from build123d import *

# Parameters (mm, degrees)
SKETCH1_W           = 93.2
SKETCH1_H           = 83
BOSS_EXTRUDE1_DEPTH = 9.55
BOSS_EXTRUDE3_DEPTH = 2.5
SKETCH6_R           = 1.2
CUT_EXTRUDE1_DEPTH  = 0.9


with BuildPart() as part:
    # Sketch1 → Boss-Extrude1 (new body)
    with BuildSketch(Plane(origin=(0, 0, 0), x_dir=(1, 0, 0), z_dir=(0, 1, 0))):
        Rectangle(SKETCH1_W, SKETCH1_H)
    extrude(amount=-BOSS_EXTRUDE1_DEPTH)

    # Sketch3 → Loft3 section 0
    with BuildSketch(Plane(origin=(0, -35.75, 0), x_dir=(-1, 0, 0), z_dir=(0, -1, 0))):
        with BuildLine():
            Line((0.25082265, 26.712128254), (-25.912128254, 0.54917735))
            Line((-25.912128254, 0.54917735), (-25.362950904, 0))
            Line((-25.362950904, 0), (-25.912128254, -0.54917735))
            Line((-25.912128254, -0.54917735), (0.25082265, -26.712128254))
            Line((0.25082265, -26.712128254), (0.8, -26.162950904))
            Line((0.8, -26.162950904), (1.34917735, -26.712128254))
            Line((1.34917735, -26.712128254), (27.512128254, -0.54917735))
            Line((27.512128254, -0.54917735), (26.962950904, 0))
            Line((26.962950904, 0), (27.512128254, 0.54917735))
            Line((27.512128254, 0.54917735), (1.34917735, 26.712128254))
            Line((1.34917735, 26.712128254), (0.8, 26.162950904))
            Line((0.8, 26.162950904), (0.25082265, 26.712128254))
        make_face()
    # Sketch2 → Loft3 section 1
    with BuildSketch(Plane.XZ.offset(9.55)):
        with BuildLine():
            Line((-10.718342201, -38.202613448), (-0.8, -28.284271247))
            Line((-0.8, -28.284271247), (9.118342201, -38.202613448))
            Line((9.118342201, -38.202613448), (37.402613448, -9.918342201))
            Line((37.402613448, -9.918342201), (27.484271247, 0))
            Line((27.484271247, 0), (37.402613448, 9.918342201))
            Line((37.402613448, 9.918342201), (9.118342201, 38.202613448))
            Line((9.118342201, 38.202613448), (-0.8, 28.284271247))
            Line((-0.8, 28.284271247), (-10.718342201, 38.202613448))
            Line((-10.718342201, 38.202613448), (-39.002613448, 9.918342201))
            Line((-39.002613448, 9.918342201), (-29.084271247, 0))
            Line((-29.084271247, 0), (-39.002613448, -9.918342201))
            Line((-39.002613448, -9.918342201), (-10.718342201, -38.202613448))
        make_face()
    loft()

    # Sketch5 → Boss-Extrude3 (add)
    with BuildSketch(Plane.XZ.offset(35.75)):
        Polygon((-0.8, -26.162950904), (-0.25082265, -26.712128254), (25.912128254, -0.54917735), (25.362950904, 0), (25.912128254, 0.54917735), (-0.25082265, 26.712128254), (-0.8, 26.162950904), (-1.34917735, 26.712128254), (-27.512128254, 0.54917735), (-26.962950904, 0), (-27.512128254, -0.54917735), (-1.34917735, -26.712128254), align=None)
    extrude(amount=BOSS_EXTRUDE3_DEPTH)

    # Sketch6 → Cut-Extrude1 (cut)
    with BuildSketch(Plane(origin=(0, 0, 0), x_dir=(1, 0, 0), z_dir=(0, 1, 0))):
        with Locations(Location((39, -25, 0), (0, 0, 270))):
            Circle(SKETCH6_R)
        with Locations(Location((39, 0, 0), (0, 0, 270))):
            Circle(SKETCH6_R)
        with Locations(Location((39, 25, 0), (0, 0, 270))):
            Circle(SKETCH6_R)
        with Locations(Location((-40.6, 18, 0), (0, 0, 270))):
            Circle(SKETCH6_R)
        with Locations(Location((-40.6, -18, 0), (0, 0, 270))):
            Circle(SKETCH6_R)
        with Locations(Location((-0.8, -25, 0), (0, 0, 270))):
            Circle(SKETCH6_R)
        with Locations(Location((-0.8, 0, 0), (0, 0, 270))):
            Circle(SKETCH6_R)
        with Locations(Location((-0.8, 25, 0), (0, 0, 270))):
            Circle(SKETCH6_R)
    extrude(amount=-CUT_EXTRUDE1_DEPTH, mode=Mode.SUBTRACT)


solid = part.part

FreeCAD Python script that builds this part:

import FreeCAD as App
import Part
import Sketcher
Q = App.Units.Quantity

doc = App.newDocument("Part")
body = doc.addObject("PartDesign::Body", "Body")

sketch1 = body.newObject("Sketcher::SketchObject", "Sketch")
sketch1.AttachmentSupport = (doc.getObject("XZ_Plane"), [""])
sketch1.MapMode = "FlatFace"
sketch1.addGeometry([
    Part.LineSegment(App.Vector(-46.6, -41.5, 0), App.Vector(-46.6, 41.5, 0)),
    Part.LineSegment(App.Vector(-46.6, 41.5, 0), App.Vector(46.6, 41.5, 0)),
    Part.LineSegment(App.Vector(46.6, 41.5, 0), App.Vector(46.6, -41.5, 0)),
    Part.LineSegment(App.Vector(46.6, -41.5, 0), App.Vector(-46.6, -41.5, 0)),
], False)
sketch1.addConstraint([
    Sketcher.Constraint("Coincident", 0, 2, 1, 1),
    Sketcher.Constraint("Coincident", 1, 2, 2, 1),
    Sketcher.Constraint("Coincident", 2, 2, 3, 1),
    Sketcher.Constraint("Coincident", 3, 2, 0, 1),
    Sketcher.Constraint("Vertical", 0),
    Sketcher.Constraint("Horizontal", 1),
    Sketcher.Constraint("Vertical", 2),
    Sketcher.Constraint("Horizontal", 3),
    Sketcher.Constraint("Symmetric", 0, 2, 2, 2, -1, 1),
    Sketcher.Constraint("DistanceY", 0, 1, 0, 2, Q("83 mm")),
    Sketcher.Constraint("DistanceX", 1, 1, 1, 2, Q("93.2 mm")),
])
pad1 = body.newObject("PartDesign::Pad", "Pad")
pad1.Profile = sketch1
pad1.Length = 9.55

sketch2 = body.newObject("Sketcher::SketchObject", "Sketch001")
sketch2.AttachmentSupport = (doc.getObject("XZ_Plane"), [""])
sketch2.MapMode = "FlatFace"
sketch2.AttachmentOffset = App.Placement(App.Vector(0, 0, 35.75), App.Rotation())
sketch2.addGeometry([
    Part.LineSegment(App.Vector(-0.250823, -26.712128, 0), App.Vector(25.912128, -0.549177, 0)),
    Part.LineSegment(App.Vector(25.912128, -0.549177, 0), App.Vector(25.362951, 0, 0)),
    Part.LineSegment(App.Vector(25.362951, 0, 0), App.Vector(25.912128, 0.549177, 0)),
    Part.LineSegment(App.Vector(25.912128, 0.549177, 0), App.Vector(-0.250823, 26.712128, 0)),
    Part.LineSegment(App.Vector(-0.250823, 26.712128, 0), App.Vector(-0.8, 26.162951, 0)),
    Part.LineSegment(App.Vector(-0.8, 26.162951, 0), App.Vector(-1.349177, 26.712128, 0)),
    Part.LineSegment(App.Vector(-1.349177, 26.712128, 0), App.Vector(-27.512128, 0.549177, 0)),
    Part.LineSegment(App.Vector(-27.512128, 0.549177, 0), App.Vector(-26.962951, 0, 0)),
    Part.LineSegment(App.Vector(-26.962951, 0, 0), App.Vector(-27.512128, -0.549177, 0)),
    Part.LineSegment(App.Vector(-27.512128, -0.549177, 0), App.Vector(-1.349177, -26.712128, 0)),
    Part.LineSegment(App.Vector(-1.349177, -26.712128, 0), App.Vector(-0.8, -26.162951, 0)),
    Part.LineSegment(App.Vector(-0.8, -26.162951, 0), App.Vector(-0.250823, -26.712128, 0)),
], False)
sketch2.addConstraint([
    Sketcher.Constraint("Coincident", 0, 2, 1, 1),
    Sketcher.Constraint("Coincident", 1, 2, 2, 1),
    Sketcher.Constraint("Coincident", 2, 2, 3, 1),
    Sketcher.Constraint("Coincident", 3, 2, 4, 1),
    Sketcher.Constraint("Coincident", 4, 2, 5, 1),
    Sketcher.Constraint("Coincident", 5, 2, 6, 1),
    Sketcher.Constraint("Coincident", 6, 2, 7, 1),
    Sketcher.Constraint("Coincident", 7, 2, 8, 1),
    Sketcher.Constraint("Coincident", 8, 2, 9, 1),
    Sketcher.Constraint("Coincident", 9, 2, 10, 1),
    Sketcher.Constraint("Coincident", 10, 2, 11, 1),
    Sketcher.Constraint("Coincident", 11, 2, 0, 1),
    Sketcher.Constraint("Symmetric", 0, 2, 2, 2, -1),
    Sketcher.Constraint("Symmetric", 6, 2, 8, 2, -1),
    Sketcher.Constraint("Symmetric", 5, 2, 9, 2, -1),
    Sketcher.Constraint("Symmetric", 4, 2, 10, 2, -1),
    Sketcher.Constraint("Symmetric", 3, 2, 11, 2, -1),
    Sketcher.Constraint("PointOnObject", 1, 2, -1),
    Sketcher.Constraint("PointOnObject", 7, 2, -1),
    Sketcher.Constraint("Perpendicular", 0, 1),
    Sketcher.Constraint("Perpendicular", 1, 2),
    Sketcher.Constraint("Perpendicular", 3, 4),
    Sketcher.Constraint("Perpendicular", 4, 5),
    Sketcher.Constraint("Perpendicular", 5, 6),
    Sketcher.Constraint("Perpendicular", 6, 7),
    Sketcher.Constraint("Horizontal", 3, 2, 5, 2),
    Sketcher.Constraint("Horizontal", 2, 2, 6, 2),
    Sketcher.Constraint("Equal", 2, 4),
    Sketcher.Constraint("Distance", 0, Q("37 mm")),
    Sketcher.Constraint("DistanceX", 4, 2, -1, 1, Q("0.8 mm")),
    Sketcher.Constraint("DistanceX", -1, 1, 0, 2, Q("25.912128 mm")),
])

sketch3 = body.newObject("Sketcher::SketchObject", "Sketch002")
sketch3.AttachmentSupport = (doc.getObject("XZ_Plane"), [""])
sketch3.MapMode = "FlatFace"
sketch3.AttachmentOffset = App.Placement(App.Vector(0, 0, 9.55), App.Rotation())
sketch3.addGeometry([
    Part.LineSegment(App.Vector(-10.718342, -38.202613, 0), App.Vector(-0.8, -28.284271, 0)),
    Part.LineSegment(App.Vector(-0.8, -28.284271, 0), App.Vector(9.118342, -38.202613, 0)),
    Part.LineSegment(App.Vector(9.118342, -38.202613, 0), App.Vector(37.402613, -9.918342, 0)),
    Part.LineSegment(App.Vector(37.402613, -9.918342, 0), App.Vector(27.484271, 0, 0)),
    Part.LineSegment(App.Vector(27.484271, 0, 0), App.Vector(37.402613, 9.918342, 0)),
    Part.LineSegment(App.Vector(37.402613, 9.918342, 0), App.Vector(9.118342, 38.202613, 0)),
    Part.LineSegment(App.Vector(9.118342, 38.202613, 0), App.Vector(-0.8, 28.284271, 0)),
    Part.LineSegment(App.Vector(-0.8, 28.284271, 0), App.Vector(-10.718342, 38.202613, 0)),
    Part.LineSegment(App.Vector(-10.718342, 38.202613, 0), App.Vector(-39.002613, 9.918342, 0)),
    Part.LineSegment(App.Vector(-39.002613, 9.918342, 0), App.Vector(-29.084271, 0, 0)),
    Part.LineSegment(App.Vector(-29.084271, 0, 0), App.Vector(-39.002613, -9.918342, 0)),
    Part.LineSegment(App.Vector(-39.002613, -9.918342, 0), App.Vector(-10.718342, -38.202613, 0)),
], False)
sketch3.addConstraint([
    Sketcher.Constraint("Coincident", 0, 2, 1, 1),
    Sketcher.Constraint("Coincident", 1, 2, 2, 1),
    Sketcher.Constraint("Coincident", 2, 2, 3, 1),
    Sketcher.Constraint("Coincident", 3, 2, 4, 1),
    Sketcher.Constraint("Coincident", 4, 2, 5, 1),
    Sketcher.Constraint("Coincident", 5, 2, 6, 1),
    Sketcher.Constraint("Coincident", 6, 2, 7, 1),
    Sketcher.Constraint("Coincident", 7, 2, 8, 1),
    Sketcher.Constraint("Coincident", 8, 2, 9, 1),
    Sketcher.Constraint("Coincident", 9, 2, 10, 1),
    Sketcher.Constraint("Coincident", 10, 2, 11, 1),
    Sketcher.Constraint("Coincident", 11, 2, 0, 1),
    Sketcher.Constraint("Symmetric", 2, 2, 4, 2, -1),
    Sketcher.Constraint("Symmetric", 1, 2, 5, 2, -1),
    Sketcher.Constraint("Symmetric", 0, 2, 6, 2, -1),
    Sketcher.Constraint("Symmetric", 8, 2, 10, 2, -1),
    Sketcher.Constraint("Symmetric", 7, 2, 11, 2, -1),
    Sketcher.Constraint("PointOnObject", 3, 2, -1),
    Sketcher.Constraint("PointOnObject", 9, 2, -1),
    Sketcher.Constraint("Perpendicular", 0, 1),
    Sketcher.Constraint("Perpendicular", 1, 2),
    Sketcher.Constraint("Perpendicular", 2, 3),
    Sketcher.Constraint("Perpendicular", 3, 4),
    Sketcher.Constraint("Perpendicular", 7, 8),
    Sketcher.Constraint("Perpendicular", 8, 9),
    Sketcher.Constraint("Horizontal", 5, 2, 7, 2),
    Sketcher.Constraint("Horizontal", 4, 2, 8, 2),
    Sketcher.Constraint("Equal", 1, 3),
    Sketcher.Constraint("Distance", 2, Q("40 mm")),
    Sketcher.Constraint("DistanceX", 0, 2, -1, 1, Q("0.8 mm")),
    Sketcher.Constraint("DistanceY", 0, 2, 2, 2, Q("18.365929 mm")),
])

additiveloft = body.newObject("PartDesign::AdditiveLoft", "AdditiveLoft")
additiveloft.Profile = sketch2
additiveloft.Sections = [sketch3]

sketch4 = body.newObject("Sketcher::SketchObject", "Sketch003")
sketch4.AttachmentSupport = (doc.getObject("XZ_Plane"), [""])
sketch4.MapMode = "FlatFace"
sketch4.AttachmentOffset = App.Placement(App.Vector(0, 0, 35.75), App.Rotation())
sketch4.addGeometry([
    Part.LineSegment(App.Vector(-0.8, -26.162951, 0), App.Vector(-0.250823, -26.712128, 0)),
    Part.LineSegment(App.Vector(-0.250823, -26.712128, 0), App.Vector(25.912128, -0.549177, 0)),
    Part.LineSegment(App.Vector(25.912128, -0.549177, 0), App.Vector(25.362951, 0, 0)),
    Part.LineSegment(App.Vector(25.362951, 0, 0), App.Vector(25.912128, 0.549177, 0)),
    Part.LineSegment(App.Vector(25.912128, 0.549177, 0), App.Vector(-0.250823, 26.712128, 0)),
    Part.LineSegment(App.Vector(-0.250823, 26.712128, 0), App.Vector(-0.8, 26.162951, 0)),
    Part.LineSegment(App.Vector(-0.8, 26.162951, 0), App.Vector(-1.349177, 26.712128, 0)),
    Part.LineSegment(App.Vector(-1.349177, 26.712128, 0), App.Vector(-27.512128, 0.549177, 0)),
    Part.LineSegment(App.Vector(-27.512128, 0.549177, 0), App.Vector(-26.962951, 0, 0)),
    Part.LineSegment(App.Vector(-26.962951, 0, 0), App.Vector(-27.512128, -0.549177, 0)),
    Part.LineSegment(App.Vector(-27.512128, -0.549177, 0), App.Vector(-1.349177, -26.712128, 0)),
    Part.LineSegment(App.Vector(-1.349177, -26.712128, 0), App.Vector(-0.8, -26.162951, 0)),
], False)
sketch4.addConstraint([
    Sketcher.Constraint("Coincident", 0, 2, 1, 1),
    Sketcher.Constraint("Coincident", 1, 2, 2, 1),
    Sketcher.Constraint("Coincident", 2, 2, 3, 1),
    Sketcher.Constraint("Coincident", 3, 2, 4, 1),
    Sketcher.Constraint("Coincident", 4, 2, 5, 1),
    Sketcher.Constraint("Coincident", 5, 2, 6, 1),
    Sketcher.Constraint("Coincident", 6, 2, 7, 1),
    Sketcher.Constraint("Coincident", 7, 2, 8, 1),
    Sketcher.Constraint("Coincident", 8, 2, 9, 1),
    Sketcher.Constraint("Coincident", 9, 2, 10, 1),
    Sketcher.Constraint("Coincident", 10, 2, 11, 1),
    Sketcher.Constraint("Coincident", 11, 2, 0, 1),
    Sketcher.Constraint("Symmetric", 1, 2, 3, 2, -1),
    Sketcher.Constraint("Symmetric", 0, 2, 4, 2, -1),
    Sketcher.Constraint("Symmetric", 7, 2, 9, 2, -1),
    Sketcher.Constraint("Symmetric", 6, 2, 10, 2, -1),
    Sketcher.Constraint("Symmetric", 5, 2, 11, 2, -1),
    Sketcher.Constraint("PointOnObject", 2, 2, -1),
    Sketcher.Constraint("PointOnObject", 8, 2, -1),
    Sketcher.Constraint("Perpendicular", 0, 1),
    Sketcher.Constraint("Perpendicular", 1, 2),
    Sketcher.Constraint("Perpendicular", 2, 3),
    Sketcher.Constraint("Perpendicular", 5, 6),
    Sketcher.Constraint("Perpendicular", 6, 7),
    Sketcher.Constraint("Perpendicular", 7, 8),
    Sketcher.Constraint("Horizontal", 4, 2, 6, 2),
    Sketcher.Constraint("Horizontal", 3, 2, 7, 2),
    Sketcher.Constraint("Equal", 0, 2),
    Sketcher.Constraint("Distance", 1, Q("37 mm")),
    Sketcher.Constraint("DistanceX", 5, 2, -1, 1, Q("0.8 mm")),
    Sketcher.Constraint("DistanceY", 0, 2, -1, 1, Q("26.712128 mm")),
])
pad2 = body.newObject("PartDesign::Pad", "Pad001")
pad2.Profile = sketch4
pad2.Length = 2.5

sketch5 = body.newObject("Sketcher::SketchObject", "Sketch004")
sketch5.AttachmentSupport = (doc.getObject("XZ_Plane"), [""])
sketch5.MapMode = "FlatFace"
sketch5.addGeometry([
    Part.Circle(App.Vector(39, 25, 0), App.Vector(0, 0, 1), 1.2),
    Part.Circle(App.Vector(39, 0, 0), App.Vector(0, 0, 1), 1.2),
    Part.Circle(App.Vector(39, -25, 0), App.Vector(0, 0, 1), 1.2),
    Part.Circle(App.Vector(-40.6, -18, 0), App.Vector(0, 0, 1), 1.2),
    Part.Circle(App.Vector(-40.6, 18, 0), App.Vector(0, 0, 1), 1.2),
    Part.Circle(App.Vector(-0.8, 25, 0), App.Vector(0, 0, 1), 1.2),
    Part.Circle(App.Vector(-0.8, 0, 0), App.Vector(0, 0, 1), 1.2),
    Part.Circle(App.Vector(-0.8, -25, 0), App.Vector(0, 0, 1), 1.2),
], False)
sketch5.addConstraint([
    Sketcher.Constraint("Equal", 0, 1),
    Sketcher.Constraint("Equal", 1, 2),
    Sketcher.Constraint("Equal", 2, 3),
    Sketcher.Constraint("Equal", 3, 4),
    Sketcher.Constraint("Equal", 4, 5),
    Sketcher.Constraint("Equal", 5, 6),
    Sketcher.Constraint("Equal", 6, 7),
    Sketcher.Constraint("Symmetric", 0, 3, 2, 3, -1),
    Sketcher.Constraint("Symmetric", 3, 3, 4, 3, -1),
    Sketcher.Constraint("Symmetric", 5, 3, 7, 3, -1),
    Sketcher.Constraint("PointOnObject", 1, 3, -1),
    Sketcher.Constraint("PointOnObject", 6, 3, -1),
    Sketcher.Constraint("Horizontal", 0, 3, 5, 3),
    Sketcher.Constraint("Vertical", 0, 3, 1, 3),
    Sketcher.Constraint("Vertical", 5, 3, 6, 3),
    Sketcher.Constraint("Diameter", 0, Q("2.4 mm")),
    Sketcher.Constraint("DistanceX", -1, 1, 0, 3, Q("39 mm")),
    Sketcher.Constraint("DistanceY", -1, 1, 0, 3, Q("25 mm")),
    Sketcher.Constraint("DistanceY", 3, 3, -1, 1, Q("18 mm")),
    Sketcher.Constraint("DistanceX", 3, 3, -1, 1, Q("40.6 mm")),
    Sketcher.Constraint("DistanceX", 5, 3, -1, 1, Q("0.8 mm")),
])
pocket1 = body.newObject("PartDesign::Pocket", "Pocket")
pocket1.Profile = sketch5
pocket1.Length = 0.9
pocket1.Reversed = True

doc.recompute()
